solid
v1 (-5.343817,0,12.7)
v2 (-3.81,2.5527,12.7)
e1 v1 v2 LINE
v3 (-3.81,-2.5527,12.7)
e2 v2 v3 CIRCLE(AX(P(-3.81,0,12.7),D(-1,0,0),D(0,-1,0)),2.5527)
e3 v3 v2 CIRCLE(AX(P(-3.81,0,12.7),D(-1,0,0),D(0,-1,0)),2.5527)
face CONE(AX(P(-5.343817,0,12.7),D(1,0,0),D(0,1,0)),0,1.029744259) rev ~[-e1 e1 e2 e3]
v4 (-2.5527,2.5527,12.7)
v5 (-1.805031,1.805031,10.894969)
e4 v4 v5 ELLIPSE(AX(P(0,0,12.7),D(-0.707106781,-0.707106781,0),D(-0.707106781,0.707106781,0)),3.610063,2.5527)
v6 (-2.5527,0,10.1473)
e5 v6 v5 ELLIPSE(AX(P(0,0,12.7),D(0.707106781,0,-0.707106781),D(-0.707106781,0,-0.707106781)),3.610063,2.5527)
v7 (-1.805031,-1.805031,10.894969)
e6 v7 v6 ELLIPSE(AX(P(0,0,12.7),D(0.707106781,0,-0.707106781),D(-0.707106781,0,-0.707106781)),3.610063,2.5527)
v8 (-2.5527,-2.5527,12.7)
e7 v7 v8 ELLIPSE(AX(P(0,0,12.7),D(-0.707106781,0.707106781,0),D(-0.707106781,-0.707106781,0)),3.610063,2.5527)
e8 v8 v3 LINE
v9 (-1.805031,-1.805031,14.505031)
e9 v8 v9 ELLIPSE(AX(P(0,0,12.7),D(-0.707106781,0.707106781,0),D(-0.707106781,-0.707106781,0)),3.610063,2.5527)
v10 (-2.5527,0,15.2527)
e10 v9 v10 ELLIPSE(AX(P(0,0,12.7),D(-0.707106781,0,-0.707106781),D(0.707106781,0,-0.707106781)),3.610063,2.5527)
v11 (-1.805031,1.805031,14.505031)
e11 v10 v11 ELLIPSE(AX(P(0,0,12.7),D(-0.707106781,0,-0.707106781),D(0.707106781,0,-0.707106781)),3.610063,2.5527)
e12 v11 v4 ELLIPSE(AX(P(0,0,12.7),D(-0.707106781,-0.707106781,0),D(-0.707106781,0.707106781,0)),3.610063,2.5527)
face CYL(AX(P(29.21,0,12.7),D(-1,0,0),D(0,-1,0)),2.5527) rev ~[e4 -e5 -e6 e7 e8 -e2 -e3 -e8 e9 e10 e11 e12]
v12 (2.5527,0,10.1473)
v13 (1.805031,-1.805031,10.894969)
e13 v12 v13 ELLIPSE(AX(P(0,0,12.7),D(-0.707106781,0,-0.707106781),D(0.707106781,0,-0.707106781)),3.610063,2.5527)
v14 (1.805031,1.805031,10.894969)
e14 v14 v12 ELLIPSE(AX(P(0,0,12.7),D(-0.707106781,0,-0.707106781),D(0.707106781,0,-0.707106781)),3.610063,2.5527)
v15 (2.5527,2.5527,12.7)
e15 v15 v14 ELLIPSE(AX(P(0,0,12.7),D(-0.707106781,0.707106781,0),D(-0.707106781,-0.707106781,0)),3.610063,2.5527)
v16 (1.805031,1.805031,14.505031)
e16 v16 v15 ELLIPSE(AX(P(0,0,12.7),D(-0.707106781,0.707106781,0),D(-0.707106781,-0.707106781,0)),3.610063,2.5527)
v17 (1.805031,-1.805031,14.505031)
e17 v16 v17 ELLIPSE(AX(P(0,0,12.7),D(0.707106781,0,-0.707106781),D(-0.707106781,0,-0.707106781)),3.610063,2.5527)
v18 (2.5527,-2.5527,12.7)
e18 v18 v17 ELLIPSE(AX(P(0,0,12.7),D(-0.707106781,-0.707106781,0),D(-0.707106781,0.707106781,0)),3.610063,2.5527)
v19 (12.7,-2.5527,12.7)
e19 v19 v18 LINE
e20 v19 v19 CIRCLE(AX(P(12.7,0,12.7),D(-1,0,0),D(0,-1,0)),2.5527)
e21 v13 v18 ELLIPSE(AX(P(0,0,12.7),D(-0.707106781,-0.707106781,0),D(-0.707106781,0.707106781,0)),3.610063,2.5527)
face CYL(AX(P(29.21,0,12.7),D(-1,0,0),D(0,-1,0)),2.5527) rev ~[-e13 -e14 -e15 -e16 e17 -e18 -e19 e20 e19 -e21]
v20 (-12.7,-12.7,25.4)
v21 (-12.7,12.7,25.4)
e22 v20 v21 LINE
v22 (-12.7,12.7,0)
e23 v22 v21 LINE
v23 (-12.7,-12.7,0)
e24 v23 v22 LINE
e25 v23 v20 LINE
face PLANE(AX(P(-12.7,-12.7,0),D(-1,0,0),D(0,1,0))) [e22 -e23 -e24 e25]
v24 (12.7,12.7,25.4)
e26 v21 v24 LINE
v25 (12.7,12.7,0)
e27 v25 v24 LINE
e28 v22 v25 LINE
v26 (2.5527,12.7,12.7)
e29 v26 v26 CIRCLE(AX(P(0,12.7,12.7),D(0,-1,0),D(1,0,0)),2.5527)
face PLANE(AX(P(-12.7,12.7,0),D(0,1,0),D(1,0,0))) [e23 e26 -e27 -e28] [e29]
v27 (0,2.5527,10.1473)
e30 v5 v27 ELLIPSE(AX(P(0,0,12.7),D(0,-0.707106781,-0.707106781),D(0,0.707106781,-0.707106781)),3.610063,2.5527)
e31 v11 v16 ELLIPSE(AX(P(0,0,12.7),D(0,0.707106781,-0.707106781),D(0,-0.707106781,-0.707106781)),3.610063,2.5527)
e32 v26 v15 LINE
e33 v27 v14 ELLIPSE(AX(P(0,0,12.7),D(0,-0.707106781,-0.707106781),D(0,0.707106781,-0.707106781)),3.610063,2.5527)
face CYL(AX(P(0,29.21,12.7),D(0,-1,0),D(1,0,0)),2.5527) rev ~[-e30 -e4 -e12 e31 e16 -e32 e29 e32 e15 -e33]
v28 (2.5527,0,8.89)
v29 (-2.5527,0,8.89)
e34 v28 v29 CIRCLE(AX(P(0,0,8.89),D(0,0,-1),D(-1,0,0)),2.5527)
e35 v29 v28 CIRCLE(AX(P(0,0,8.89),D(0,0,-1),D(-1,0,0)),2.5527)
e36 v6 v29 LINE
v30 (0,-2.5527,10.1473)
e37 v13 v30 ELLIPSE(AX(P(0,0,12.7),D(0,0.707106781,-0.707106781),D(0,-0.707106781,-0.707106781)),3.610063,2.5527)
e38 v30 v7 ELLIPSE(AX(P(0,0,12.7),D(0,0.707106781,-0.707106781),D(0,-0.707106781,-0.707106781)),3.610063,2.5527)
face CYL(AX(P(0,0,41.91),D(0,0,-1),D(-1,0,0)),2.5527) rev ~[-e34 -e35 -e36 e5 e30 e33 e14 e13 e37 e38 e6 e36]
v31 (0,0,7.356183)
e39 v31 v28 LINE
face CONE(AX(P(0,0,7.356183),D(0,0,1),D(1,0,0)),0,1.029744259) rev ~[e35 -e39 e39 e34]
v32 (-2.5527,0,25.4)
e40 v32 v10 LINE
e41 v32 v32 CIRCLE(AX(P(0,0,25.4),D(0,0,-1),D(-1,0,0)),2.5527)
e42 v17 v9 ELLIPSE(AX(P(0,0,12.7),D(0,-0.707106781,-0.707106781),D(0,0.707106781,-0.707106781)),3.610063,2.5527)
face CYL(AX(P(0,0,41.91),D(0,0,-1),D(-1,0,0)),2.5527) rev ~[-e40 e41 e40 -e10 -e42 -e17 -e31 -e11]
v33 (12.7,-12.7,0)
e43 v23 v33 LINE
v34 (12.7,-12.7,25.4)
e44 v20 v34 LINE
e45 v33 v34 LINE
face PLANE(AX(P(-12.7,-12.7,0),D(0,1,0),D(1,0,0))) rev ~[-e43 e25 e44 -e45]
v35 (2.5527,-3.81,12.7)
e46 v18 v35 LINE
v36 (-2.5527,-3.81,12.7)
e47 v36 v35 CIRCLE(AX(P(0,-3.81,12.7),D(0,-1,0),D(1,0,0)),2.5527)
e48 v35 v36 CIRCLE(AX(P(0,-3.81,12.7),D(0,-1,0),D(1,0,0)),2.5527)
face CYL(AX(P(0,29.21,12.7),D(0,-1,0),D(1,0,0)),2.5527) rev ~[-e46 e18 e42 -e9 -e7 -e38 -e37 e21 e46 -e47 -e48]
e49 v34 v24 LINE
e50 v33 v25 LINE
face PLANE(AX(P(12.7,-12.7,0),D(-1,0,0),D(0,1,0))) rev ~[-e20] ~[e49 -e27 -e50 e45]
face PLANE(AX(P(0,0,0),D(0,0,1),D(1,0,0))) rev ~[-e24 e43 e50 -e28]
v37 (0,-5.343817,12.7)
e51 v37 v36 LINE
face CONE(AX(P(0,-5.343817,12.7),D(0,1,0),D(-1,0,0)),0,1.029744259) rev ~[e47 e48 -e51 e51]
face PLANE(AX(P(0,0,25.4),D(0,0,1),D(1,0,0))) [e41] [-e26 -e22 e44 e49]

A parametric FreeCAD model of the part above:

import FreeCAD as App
import Part
import Sketcher
from FreeCAD import Vector
Q = App.Units.Quantity

doc = App.newDocument("Part")
params = doc.addObject("Spreadsheet::Sheet", "Params")
for row, (alias, value) in enumerate([
    ("sketch1_width", "1 in"),
    ("pad1_length", "1 in"),
    ("sketch2_diameter", "0.201 in"),
    ("hole_diameter", "0.201 in"),
    ("hole_depth", "0.65 in"),
    ("sketch3_diameter", "0.201 in"),
    ("hole2_diameter", "0.201 in"),
    ("hole2_depth", "0.65 in"),
    ("sketch4_diameter", "0.201 in"),
    ("hole3_diameter", "0.201 in"),
    ("hole3_depth", "0.65 in"),
], start=1):
    params.set(f"A{row}", alias)
    params.set(f"B{row}", "=" + value)
    params.setAlias(f"B{row}", alias)

body = doc.addObject("PartDesign::Body", "Body")

# Sketch on XY plane
sketch1 = doc.addObject("Sketcher::SketchObject", "Sketch")
body.addObject(sketch1)
sketch1.AttachmentSupport = (doc.XY_Plane, [""])
sketch1.MapMode = "FlatFace"
sketch1.addGeometry(Part.LineSegment(Vector(-13, 13, 0), Vector(-13, -13, 0)), False)
sketch1.addGeometry(Part.LineSegment(Vector(-13, -13, 0), Vector(13, -13, 0)), False)
sketch1.addGeometry(Part.LineSegment(Vector(13, -13, 0), Vector(13, 13, 0)), False)
sketch1.addGeometry(Part.LineSegment(Vector(13, 13, 0), Vector(-13, 13, 0)), False)
sketch1.addConstraint(Sketcher.Constraint("Coincident", 0, 2, 1, 1))
sketch1.addConstraint(Sketcher.Constraint("Coincident", 1, 2, 2, 1))
sketch1.addConstraint(Sketcher.Constraint("Coincident", 2, 2, 3, 1))
sketch1.addConstraint(Sketcher.Constraint("Coincident", 3, 2, 0, 1))
sketch1.addConstraint(Sketcher.Constraint("Vertical", 0))
sketch1.addConstraint(Sketcher.Constraint("Horizontal", 1))
sketch1.addConstraint(Sketcher.Constraint("Vertical", 2))
sketch1.addConstraint(Sketcher.Constraint("Horizontal", 3))
sketch1.addConstraint(Sketcher.Constraint("Symmetric", 0, 2, 2, 2, -1, 1))
sketch1.addConstraint(Sketcher.Constraint("Equal", 3, 0))
sketch1.addConstraint(Sketcher.Constraint("DistanceX", 1, 1, 1, 2, Q("1 in")))
sketch1.setExpression("Constraints[10]", "Params.sketch1_width")
pad1 = doc.addObject("PartDesign::Pad", "Pad")
body.addObject(pad1)
pad1.Profile = sketch1
pad1.setExpression("Length", "Params.pad1_length")

# Sketch on XY plane
sketch2 = doc.addObject("Sketcher::SketchObject", "Sketch001")
body.addObject(sketch2)
sketch2.AttachmentSupport = (doc.XY_Plane, [""])
sketch2.MapMode = "FlatFace"
sketch2.AttachmentOffset = App.Placement(Vector(0, 0, 1 * 25.4), App.Rotation())
sketch2.addGeometry(Part.Circle(Vector(0, 0, 0), Vector(0, 0, 1), 2.6), False)
sketch2.addConstraint(Sketcher.Constraint("Coincident", 0, 3, -1, 1))
sketch2.addConstraint(Sketcher.Constraint("Diameter", 0, Q("0.201 in")))
sketch2.setExpression("Constraints[1]", "Params.sketch2_diameter")
doc.recompute()
hole = doc.addObject("PartDesign::Hole", "Hole")
body.addObject(hole)
hole.Profile = sketch2
hole.ThreadType = "None"
hole.setExpression("Diameter", "Params.hole_diameter")
hole.DepthType = "Dimension"
hole.setExpression("Depth", "Params.hole_depth")
hole.DrillPoint = "Angled"
hole.DrillPointAngle = 118

# Sketch on YZ plane
sketch3 = doc.addObject("Sketcher::SketchObject", "Sketch002")
body.addObject(sketch3)
sketch3.AttachmentSupport = (doc.YZ_Plane, [""])
sketch3.MapMode = "FlatFace"
sketch3.AttachmentOffset = App.Placement(Vector(0, 0, 0.5 * 25.4), App.Rotation())
sketch3.addGeometry(Part.Circle(Vector(0, 12.7, 0), Vector(0, 0, 1), 2.6), False)
sketch3.addConstraint(Sketcher.Constraint("PointOnObject", 0, 3, -2))
sketch3.addConstraint(Sketcher.Constraint("Diameter", 0, Q("0.201 in")))
sketch3.addConstraint(Sketcher.Constraint("DistanceY", -1, 1, 0, 3, Q("0.5 in")))
sketch3.setExpression("Constraints[1]", "Params.sketch3_diameter")
doc.recompute()
hole2 = doc.addObject("PartDesign::Hole", "Hole001")
body.addObject(hole2)
hole2.Profile = sketch3
hole2.ThreadType = "None"
hole2.setExpression("Diameter", "Params.hole2_diameter")
hole2.DepthType = "Dimension"
hole2.setExpression("Depth", "Params.hole2_depth")
hole2.DrillPoint = "Angled"
hole2.DrillPointAngle = 118

# Sketch on XZ plane
sketch4 = doc.addObject("Sketcher::SketchObject", "Sketch003")
body.addObject(sketch4)
sketch4.AttachmentSupport = (doc.XZ_Plane, [""])
sketch4.MapMode = "FlatFace"
sketch4.AttachmentOffset = App.Placement(Vector(0, 0, -0.5 * 25.4), App.Rotation())
sketch4.addGeometry(Part.Circle(Vector(0, 12.7, 0), Vector(0, 0, 1), 2.6), False)
sketch4.addConstraint(Sketcher.Constraint("PointOnObject", 0, 3, -2))
sketch4.addConstraint(Sketcher.Constraint("Diameter", 0, Q("0.201 in")))
sketch4.addConstraint(Sketcher.Constraint("DistanceY", -1, 1, 0, 3, Q("0.5 in")))
sketch4.setExpression("Constraints[1]", "Params.sketch4_diameter")
doc.recompute()
hole3 = doc.addObject("PartDesign::Hole", "Hole002")
body.addObject(hole3)
hole3.Profile = sketch4
hole3.ThreadType = "None"
hole3.setExpression("Diameter", "Params.hole3_diameter")
hole3.DepthType = "Dimension"
hole3.setExpression("Depth", "Params.hole3_depth")
hole3.DrillPoint = "Angled"
hole3.DrillPointAngle = 118
hole3.Reversed = True

doc.recompute()
